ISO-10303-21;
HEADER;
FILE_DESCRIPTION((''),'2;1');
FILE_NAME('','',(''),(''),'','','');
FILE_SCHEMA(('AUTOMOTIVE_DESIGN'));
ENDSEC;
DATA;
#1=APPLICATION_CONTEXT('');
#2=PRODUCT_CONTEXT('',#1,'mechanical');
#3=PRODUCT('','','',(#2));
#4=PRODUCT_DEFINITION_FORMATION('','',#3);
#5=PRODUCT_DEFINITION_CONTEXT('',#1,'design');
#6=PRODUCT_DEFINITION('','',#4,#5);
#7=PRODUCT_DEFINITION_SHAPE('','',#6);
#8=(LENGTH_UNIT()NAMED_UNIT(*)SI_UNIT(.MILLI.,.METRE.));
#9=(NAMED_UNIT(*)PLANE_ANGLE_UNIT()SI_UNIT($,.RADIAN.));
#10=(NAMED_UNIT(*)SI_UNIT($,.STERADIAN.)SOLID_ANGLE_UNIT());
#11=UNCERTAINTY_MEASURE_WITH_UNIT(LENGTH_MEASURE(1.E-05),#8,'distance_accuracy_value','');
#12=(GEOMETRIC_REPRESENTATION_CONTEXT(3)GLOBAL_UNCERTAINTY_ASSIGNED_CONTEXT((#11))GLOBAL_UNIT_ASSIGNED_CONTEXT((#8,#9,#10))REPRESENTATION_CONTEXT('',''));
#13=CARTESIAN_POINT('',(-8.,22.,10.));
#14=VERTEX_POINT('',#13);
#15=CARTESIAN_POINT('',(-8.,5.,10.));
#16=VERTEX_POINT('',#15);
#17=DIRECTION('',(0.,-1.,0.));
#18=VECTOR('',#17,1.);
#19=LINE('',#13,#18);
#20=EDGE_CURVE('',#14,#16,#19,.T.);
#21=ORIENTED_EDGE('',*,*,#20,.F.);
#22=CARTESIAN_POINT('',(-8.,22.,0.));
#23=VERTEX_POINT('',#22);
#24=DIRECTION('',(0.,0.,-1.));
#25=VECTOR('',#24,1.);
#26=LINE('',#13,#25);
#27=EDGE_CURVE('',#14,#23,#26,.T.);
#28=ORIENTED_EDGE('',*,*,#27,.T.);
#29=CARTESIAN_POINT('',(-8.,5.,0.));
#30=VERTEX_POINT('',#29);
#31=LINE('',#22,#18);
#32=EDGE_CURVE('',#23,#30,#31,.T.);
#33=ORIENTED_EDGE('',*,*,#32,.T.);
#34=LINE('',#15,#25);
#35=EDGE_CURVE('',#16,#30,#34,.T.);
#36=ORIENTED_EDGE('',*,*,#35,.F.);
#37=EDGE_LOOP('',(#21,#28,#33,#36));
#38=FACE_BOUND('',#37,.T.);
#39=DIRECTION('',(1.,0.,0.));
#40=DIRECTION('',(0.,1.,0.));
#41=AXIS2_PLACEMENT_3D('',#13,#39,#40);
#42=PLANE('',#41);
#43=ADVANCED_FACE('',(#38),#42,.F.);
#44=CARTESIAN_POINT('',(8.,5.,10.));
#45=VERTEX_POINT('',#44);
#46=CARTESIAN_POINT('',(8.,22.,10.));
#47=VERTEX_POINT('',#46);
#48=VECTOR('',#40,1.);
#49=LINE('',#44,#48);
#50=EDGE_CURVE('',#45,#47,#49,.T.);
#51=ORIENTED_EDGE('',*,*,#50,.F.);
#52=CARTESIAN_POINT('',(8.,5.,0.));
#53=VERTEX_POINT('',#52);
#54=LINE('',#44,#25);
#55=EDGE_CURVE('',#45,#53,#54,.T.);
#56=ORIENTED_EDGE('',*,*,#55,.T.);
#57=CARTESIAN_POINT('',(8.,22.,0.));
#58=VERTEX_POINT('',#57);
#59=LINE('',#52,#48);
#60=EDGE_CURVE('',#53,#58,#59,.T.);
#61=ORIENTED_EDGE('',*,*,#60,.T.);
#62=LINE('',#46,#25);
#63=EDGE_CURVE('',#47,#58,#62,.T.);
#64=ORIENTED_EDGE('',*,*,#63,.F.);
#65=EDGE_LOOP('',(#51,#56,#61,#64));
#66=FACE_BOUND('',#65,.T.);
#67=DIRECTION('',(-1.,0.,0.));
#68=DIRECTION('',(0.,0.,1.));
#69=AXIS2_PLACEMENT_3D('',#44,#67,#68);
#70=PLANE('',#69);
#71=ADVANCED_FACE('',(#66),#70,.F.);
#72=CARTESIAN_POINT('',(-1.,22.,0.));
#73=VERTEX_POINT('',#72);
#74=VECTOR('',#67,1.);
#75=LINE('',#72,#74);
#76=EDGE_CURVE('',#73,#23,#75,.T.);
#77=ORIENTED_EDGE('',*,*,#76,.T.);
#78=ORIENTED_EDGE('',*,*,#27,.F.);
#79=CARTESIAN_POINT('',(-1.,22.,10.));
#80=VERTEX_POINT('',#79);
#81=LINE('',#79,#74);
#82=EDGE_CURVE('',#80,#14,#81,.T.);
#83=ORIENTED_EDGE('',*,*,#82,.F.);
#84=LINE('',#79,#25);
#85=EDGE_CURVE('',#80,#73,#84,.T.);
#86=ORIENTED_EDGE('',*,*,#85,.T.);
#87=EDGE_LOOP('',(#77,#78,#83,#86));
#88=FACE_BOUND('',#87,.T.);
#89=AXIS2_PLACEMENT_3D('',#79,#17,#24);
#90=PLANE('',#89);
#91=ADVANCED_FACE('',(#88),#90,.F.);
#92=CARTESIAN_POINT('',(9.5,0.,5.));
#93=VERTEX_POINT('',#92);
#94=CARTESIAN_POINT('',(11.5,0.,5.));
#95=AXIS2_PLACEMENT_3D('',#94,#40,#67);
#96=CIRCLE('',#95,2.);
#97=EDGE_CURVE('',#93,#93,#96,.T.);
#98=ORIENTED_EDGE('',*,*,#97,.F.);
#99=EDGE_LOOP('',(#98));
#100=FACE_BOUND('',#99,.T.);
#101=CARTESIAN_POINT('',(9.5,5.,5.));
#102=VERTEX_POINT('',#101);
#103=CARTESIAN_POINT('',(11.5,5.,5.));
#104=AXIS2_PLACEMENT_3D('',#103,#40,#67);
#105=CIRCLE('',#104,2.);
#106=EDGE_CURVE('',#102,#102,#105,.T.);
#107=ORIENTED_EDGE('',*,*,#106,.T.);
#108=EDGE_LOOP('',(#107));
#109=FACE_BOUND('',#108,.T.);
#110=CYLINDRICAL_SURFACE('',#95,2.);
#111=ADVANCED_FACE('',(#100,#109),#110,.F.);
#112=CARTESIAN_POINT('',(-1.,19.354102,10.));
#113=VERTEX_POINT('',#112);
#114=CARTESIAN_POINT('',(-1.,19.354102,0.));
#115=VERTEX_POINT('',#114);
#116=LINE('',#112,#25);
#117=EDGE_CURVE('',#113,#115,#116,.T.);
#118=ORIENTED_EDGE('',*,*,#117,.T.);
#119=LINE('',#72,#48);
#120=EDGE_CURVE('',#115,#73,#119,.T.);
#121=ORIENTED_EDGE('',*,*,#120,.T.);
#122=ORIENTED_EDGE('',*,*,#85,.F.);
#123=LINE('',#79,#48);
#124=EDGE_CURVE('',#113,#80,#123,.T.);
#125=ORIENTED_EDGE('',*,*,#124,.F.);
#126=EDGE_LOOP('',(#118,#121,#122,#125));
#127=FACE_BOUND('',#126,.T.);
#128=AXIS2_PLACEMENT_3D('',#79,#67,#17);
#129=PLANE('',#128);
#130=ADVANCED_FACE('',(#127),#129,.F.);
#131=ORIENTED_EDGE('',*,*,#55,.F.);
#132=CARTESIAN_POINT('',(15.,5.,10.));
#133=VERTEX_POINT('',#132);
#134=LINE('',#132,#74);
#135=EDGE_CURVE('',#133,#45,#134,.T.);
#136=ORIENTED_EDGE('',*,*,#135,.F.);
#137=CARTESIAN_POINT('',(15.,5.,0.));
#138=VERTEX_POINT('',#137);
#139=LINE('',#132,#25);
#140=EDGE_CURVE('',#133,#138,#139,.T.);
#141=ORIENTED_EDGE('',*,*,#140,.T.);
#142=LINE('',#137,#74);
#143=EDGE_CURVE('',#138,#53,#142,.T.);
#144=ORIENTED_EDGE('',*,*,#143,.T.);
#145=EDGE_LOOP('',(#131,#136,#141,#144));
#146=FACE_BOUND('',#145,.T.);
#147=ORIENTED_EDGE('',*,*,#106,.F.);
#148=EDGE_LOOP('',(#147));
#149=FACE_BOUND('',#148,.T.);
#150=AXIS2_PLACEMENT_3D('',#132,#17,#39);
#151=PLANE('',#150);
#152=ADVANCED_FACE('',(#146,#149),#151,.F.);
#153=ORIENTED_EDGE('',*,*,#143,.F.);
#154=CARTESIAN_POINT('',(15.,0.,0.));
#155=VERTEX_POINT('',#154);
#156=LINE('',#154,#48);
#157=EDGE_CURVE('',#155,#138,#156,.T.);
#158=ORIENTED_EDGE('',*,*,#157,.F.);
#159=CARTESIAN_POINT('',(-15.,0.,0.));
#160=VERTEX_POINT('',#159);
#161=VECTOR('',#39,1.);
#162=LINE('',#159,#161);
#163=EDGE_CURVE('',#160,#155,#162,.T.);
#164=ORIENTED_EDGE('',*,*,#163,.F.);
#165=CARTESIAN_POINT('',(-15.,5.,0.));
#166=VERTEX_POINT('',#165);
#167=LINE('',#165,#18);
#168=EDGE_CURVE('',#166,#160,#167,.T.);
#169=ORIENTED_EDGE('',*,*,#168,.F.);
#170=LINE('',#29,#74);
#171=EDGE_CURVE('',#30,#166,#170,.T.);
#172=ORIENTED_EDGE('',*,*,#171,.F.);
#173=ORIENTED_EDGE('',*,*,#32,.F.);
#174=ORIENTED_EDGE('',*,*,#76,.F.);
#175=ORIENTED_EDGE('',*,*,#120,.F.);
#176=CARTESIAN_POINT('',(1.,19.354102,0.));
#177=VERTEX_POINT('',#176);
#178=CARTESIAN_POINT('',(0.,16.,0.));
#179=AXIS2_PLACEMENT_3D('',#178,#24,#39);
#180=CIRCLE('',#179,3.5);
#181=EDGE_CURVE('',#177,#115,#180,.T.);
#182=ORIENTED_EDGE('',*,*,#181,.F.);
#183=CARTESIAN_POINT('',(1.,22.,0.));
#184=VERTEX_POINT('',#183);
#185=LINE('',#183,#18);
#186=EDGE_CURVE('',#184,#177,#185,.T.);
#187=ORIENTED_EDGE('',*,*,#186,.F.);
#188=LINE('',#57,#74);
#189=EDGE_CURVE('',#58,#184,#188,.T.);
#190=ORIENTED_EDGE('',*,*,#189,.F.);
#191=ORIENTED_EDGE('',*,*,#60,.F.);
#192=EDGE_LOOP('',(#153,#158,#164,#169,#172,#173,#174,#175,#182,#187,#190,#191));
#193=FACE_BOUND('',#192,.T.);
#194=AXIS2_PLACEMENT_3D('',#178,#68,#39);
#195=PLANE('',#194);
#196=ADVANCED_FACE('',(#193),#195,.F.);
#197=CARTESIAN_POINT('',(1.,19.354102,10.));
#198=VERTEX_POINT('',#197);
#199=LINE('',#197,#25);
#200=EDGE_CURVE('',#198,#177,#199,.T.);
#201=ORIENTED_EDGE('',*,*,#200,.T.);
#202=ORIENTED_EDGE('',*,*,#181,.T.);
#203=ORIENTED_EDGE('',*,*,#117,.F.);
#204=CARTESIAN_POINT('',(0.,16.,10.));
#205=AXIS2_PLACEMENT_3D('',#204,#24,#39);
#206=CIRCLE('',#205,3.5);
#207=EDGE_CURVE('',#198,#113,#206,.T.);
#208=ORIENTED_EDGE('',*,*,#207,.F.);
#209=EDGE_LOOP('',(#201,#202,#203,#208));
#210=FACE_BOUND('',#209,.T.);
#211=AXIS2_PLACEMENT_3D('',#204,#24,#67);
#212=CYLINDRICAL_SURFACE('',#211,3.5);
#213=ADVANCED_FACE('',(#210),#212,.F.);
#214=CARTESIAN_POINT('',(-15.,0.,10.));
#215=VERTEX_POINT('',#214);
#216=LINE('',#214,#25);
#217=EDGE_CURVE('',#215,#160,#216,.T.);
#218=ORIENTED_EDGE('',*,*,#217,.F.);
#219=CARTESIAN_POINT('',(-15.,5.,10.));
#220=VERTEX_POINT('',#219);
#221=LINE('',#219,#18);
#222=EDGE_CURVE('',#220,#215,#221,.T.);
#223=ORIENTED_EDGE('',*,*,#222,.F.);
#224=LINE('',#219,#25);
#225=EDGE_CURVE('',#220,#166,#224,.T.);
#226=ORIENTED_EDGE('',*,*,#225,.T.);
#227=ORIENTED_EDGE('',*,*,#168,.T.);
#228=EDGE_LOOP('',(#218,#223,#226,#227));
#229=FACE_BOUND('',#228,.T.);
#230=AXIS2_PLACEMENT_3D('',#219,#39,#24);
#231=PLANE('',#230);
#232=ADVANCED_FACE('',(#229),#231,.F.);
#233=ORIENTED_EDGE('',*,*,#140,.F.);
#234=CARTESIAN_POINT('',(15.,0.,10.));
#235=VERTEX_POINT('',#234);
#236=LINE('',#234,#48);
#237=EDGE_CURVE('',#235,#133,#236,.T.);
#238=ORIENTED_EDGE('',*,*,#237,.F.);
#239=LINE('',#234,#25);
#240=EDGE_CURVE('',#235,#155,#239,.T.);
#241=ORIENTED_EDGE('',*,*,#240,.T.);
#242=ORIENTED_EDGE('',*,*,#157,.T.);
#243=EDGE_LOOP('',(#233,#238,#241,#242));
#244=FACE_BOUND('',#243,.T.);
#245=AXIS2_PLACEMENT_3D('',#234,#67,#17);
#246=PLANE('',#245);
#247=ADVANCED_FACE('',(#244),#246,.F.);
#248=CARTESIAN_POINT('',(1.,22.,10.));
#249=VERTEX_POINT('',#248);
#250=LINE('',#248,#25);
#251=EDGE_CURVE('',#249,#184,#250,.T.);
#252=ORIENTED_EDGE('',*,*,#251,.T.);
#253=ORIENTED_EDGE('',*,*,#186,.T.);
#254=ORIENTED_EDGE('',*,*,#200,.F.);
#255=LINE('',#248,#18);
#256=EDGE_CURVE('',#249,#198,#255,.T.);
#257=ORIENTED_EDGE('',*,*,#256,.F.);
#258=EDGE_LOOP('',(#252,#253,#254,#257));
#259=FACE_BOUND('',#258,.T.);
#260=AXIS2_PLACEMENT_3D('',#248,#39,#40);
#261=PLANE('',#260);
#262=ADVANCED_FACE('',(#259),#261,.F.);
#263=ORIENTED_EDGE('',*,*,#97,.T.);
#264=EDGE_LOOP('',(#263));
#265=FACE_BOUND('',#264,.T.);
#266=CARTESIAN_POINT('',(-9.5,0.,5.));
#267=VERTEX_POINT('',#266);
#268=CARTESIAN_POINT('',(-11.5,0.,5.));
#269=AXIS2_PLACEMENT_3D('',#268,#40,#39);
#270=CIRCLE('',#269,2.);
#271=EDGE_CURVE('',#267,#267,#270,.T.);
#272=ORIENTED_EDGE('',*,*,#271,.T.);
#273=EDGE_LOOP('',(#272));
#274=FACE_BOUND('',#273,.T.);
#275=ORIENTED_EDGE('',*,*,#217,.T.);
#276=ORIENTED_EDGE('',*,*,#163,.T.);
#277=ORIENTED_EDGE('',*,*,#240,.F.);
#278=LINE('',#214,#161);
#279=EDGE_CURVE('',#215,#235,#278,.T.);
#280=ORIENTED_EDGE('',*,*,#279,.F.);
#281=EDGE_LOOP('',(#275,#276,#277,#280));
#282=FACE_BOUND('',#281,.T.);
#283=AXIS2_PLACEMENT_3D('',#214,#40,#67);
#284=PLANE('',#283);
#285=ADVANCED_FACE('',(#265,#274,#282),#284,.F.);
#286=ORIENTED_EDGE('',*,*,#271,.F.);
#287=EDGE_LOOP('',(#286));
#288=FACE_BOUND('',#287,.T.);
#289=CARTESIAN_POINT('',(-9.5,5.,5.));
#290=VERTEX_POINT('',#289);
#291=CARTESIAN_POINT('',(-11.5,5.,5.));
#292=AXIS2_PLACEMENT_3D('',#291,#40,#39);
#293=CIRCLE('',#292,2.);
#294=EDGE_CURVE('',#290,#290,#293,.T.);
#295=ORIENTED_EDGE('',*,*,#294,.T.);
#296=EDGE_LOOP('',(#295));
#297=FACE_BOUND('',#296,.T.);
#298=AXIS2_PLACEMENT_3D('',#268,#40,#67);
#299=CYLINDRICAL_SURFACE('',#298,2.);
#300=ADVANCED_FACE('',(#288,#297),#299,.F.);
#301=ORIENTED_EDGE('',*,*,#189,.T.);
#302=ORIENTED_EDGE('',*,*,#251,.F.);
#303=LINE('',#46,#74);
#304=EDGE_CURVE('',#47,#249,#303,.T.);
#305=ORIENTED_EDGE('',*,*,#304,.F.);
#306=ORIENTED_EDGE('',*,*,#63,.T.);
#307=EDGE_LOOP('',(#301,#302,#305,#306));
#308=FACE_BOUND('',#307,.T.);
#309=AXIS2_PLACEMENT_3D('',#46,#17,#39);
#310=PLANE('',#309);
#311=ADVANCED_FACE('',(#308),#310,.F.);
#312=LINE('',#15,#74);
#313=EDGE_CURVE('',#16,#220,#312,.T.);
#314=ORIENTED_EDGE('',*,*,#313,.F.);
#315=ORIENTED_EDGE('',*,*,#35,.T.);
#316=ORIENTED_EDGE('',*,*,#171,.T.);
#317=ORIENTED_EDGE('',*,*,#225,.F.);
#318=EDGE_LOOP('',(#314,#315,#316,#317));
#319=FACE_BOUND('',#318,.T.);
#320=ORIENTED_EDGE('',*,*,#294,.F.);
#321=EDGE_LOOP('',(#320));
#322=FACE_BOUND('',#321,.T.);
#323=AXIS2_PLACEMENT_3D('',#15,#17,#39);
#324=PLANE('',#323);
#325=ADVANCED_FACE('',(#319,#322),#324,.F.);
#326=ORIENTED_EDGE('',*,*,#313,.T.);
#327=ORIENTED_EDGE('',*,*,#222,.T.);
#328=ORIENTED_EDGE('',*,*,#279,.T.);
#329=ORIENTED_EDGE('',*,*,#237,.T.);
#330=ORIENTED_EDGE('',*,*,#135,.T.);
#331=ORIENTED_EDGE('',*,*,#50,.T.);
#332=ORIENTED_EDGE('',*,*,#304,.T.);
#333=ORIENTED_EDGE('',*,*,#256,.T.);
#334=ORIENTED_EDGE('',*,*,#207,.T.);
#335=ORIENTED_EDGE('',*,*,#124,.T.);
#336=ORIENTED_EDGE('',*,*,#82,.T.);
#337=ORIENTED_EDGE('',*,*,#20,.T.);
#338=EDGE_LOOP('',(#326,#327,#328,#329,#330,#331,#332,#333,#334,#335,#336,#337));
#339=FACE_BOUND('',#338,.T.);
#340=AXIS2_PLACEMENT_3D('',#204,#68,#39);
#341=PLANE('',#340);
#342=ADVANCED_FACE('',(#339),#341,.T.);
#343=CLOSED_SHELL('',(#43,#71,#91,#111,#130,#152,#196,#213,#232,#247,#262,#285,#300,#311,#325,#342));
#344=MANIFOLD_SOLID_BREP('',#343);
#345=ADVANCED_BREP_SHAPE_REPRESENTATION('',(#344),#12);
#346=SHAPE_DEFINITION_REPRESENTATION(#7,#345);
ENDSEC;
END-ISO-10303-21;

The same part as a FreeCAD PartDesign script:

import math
import FreeCAD as App
import Part
import Sketcher

doc = App.newDocument("Part")
body = doc.addObject("PartDesign::Body", "Body")

# Sketch on XY plane
sketch1 = doc.addObject("Sketcher::SketchObject", "Sketch")
body.addObject(sketch1)
sketch1.AttachmentSupport = (doc.XY_Plane, [""])
sketch1.MapMode = "FlatFace"
sketch1.addGeometry([
    Part.LineSegment(App.Vector(-15, 0, 0), App.Vector(15, 0, 0)),  # 0
    Part.LineSegment(App.Vector(15, 0, 0), App.Vector(15, 5, 0)),  # 1
    Part.LineSegment(App.Vector(15, 5, 0), App.Vector(8, 5, 0)),  # 2
    Part.LineSegment(App.Vector(8, 5, 0), App.Vector(8, 22, 0)),  # 3
    Part.LineSegment(App.Vector(8, 22, 0), App.Vector(1, 22, 0)),  # 4
    Part.LineSegment(App.Vector(1, 22, 0), App.Vector(1, 19.4, 0)),  # 5
    Part.ArcOfCircle(Part.Circle(App.Vector(0, 16, 0), App.Vector(0, 0, 1), 3.5), math.radians(107), math.radians(433)),  # 6
    Part.LineSegment(App.Vector(-1, 19.4, 0), App.Vector(-1, 22, 0)),  # 7
    Part.LineSegment(App.Vector(-1, 22, 0), App.Vector(-8, 22, 0)),  # 8
    Part.LineSegment(App.Vector(-8, 22, 0), App.Vector(-8, 5, 0)),  # 9
    Part.LineSegment(App.Vector(-8, 5, 0), App.Vector(-15, 5, 0)),  # 10
    Part.LineSegment(App.Vector(-15, 5, 0), App.Vector(-15, 0, 0)),  # 11
], False)
sketch1.addConstraint([
    Sketcher.Constraint("Coincident", 0, 2, 1, 1),
    Sketcher.Constraint("Coincident", 1, 2, 2, 1),
    Sketcher.Constraint("Coincident", 2, 2, 3, 1),
    Sketcher.Constraint("Coincident", 3, 2, 4, 1),
    Sketcher.Constraint("Coincident", 4, 2, 5, 1),
    Sketcher.Constraint("Coincident", 5, 2, 6, 2),
    Sketcher.Constraint("Coincident", 6, 1, 7, 1),
    Sketcher.Constraint("Coincident", 7, 2, 8, 1),
    Sketcher.Constraint("Coincident", 8, 2, 9, 1),
    Sketcher.Constraint("Coincident", 9, 2, 10, 1),
    Sketcher.Constraint("Coincident", 10, 2, 11, 1),
    Sketcher.Constraint("Coincident", 11, 2, 0, 1),
    Sketcher.Constraint("Horizontal", 0),
    Sketcher.Constraint("Vertical", 1),
    Sketcher.Constraint("Horizontal", 2),
    Sketcher.Constraint("Vertical", 3),
    Sketcher.Constraint("Horizontal", 4),
    Sketcher.Constraint("Vertical", 5),
    Sketcher.Constraint("Vertical", 7),
    Sketcher.Constraint("Horizontal", 8),
    Sketcher.Constraint("Vertical", 9),
    Sketcher.Constraint("Horizontal", 10),
    Sketcher.Constraint("Vertical", 11),
    Sketcher.Constraint("Symmetric", 0, 2, 11, 2, -1, 1),
    Sketcher.Constraint("Symmetric", 5, 2, 6, 1, -2),
    Sketcher.Constraint("Symmetric", 3, 2, 8, 2, -2),
    Sketcher.Constraint("Horizontal", 2, 2, 9, 2),
    Sketcher.Constraint("Equal", 2, 4),
    Sketcher.Constraint("Radius", 6, 3.5),
    Sketcher.Constraint("DistanceX", 0, 1, 0, 2, 30.0),
    Sketcher.Constraint("DistanceX", 2, 2, 2, 1, 7.0),
    Sketcher.Constraint("DistanceY", 1, 1, 1, 2, 5.0),
    Sketcher.Constraint("DistanceY", 3, 1, 3, 2, 17.0),
    Sketcher.Constraint("DistanceY", -1, 1, 6, 3, 16.0),
])
pad1 = doc.addObject("PartDesign::Pad", "Pad")
body.addObject(pad1)
pad1.Profile = sketch1
pad1.Length = 10

# Sketch on XZ plane
sketch2 = doc.addObject("Sketcher::SketchObject", "Sketch001")
body.addObject(sketch2)
sketch2.AttachmentSupport = (doc.XZ_Plane, [""])
sketch2.MapMode = "FlatFace"
sketch2.AttachmentOffset = App.Placement(App.Vector(0, 0, -5), App.Rotation())
sketch2.addGeometry([
    Part.Circle(App.Vector(11.5, 5, 0), App.Vector(0, 0, 1), 2),
    Part.Circle(App.Vector(-11.5, 5, 0), App.Vector(0, 0, 1), 2),
], False)
sketch2.addConstraint([
    Sketcher.Constraint("Equal", 0, 1),
    Sketcher.Constraint("Symmetric", 0, 3, 1, 3, -2),
    Sketcher.Constraint("Diameter", 0, 4.0),
    Sketcher.Constraint("DistanceY", -1, 1, 0, 3, 5.0),
    Sketcher.Constraint("DistanceX", 1, 3, 0, 3, 23.0),
])
pocket1 = doc.addObject("PartDesign::Pocket", "Pocket")
body.addObject(pocket1)
pocket1.Profile = sketch2
pocket1.Type = "ThroughAll"
pocket1.Reversed = True

doc.recompute()
